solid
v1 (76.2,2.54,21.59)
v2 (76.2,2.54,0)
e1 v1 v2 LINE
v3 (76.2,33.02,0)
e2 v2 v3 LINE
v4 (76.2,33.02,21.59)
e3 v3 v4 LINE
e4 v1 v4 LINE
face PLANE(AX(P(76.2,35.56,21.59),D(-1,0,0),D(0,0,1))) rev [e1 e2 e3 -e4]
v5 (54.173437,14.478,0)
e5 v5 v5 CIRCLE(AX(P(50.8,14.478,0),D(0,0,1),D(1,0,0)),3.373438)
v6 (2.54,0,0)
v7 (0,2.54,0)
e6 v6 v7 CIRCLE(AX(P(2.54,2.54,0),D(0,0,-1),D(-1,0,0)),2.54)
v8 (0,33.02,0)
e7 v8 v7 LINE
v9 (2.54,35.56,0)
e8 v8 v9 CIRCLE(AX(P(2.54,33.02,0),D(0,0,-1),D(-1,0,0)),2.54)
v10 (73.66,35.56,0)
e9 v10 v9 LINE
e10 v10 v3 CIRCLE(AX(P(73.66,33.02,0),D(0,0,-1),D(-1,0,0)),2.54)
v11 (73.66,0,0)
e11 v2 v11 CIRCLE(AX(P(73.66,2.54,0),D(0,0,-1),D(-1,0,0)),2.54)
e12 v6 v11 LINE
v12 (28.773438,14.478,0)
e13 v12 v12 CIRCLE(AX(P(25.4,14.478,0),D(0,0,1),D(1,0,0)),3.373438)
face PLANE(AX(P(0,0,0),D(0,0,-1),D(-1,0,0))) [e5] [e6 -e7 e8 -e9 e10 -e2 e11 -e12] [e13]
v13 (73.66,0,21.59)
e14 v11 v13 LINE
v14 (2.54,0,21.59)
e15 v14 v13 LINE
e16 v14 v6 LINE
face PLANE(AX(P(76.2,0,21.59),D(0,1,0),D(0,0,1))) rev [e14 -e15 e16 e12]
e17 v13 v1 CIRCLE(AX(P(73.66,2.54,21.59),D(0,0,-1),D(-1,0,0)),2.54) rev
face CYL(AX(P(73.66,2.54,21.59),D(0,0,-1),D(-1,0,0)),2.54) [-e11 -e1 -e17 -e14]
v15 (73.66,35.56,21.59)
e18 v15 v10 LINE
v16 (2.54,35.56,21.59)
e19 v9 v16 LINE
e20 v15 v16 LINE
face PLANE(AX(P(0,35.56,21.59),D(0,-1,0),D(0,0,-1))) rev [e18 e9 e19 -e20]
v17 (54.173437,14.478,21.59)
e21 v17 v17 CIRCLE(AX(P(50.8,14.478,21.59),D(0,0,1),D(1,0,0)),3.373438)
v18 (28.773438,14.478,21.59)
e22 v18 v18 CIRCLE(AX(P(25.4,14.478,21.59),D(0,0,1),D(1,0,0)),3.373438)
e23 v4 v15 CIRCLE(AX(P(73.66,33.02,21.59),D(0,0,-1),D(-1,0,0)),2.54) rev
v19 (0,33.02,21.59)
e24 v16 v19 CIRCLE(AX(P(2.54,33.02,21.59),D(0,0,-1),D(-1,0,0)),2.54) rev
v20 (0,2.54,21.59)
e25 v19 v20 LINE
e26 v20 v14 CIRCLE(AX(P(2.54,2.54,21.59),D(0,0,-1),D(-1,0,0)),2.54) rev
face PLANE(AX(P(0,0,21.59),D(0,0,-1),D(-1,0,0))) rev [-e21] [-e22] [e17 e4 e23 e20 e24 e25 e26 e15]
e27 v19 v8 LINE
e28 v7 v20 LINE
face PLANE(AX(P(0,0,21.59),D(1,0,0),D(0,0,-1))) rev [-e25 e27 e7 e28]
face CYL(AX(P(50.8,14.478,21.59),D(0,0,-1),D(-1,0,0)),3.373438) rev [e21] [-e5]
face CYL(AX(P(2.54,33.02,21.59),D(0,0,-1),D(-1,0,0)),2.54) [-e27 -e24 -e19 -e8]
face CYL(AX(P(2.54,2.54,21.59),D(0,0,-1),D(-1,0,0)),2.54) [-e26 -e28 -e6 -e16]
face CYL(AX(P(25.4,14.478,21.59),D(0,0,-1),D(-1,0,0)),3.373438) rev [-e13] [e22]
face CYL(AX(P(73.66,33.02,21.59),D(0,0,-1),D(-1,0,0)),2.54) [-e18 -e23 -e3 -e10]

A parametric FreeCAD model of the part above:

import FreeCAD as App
import Part
import Sketcher

V = App.Vector
Q = App.Units.Quantity


def edges_at(feature, points):
    """Names of the edges that pass closest to the given points."""
    edges = feature.Shape.Edges
    near = lambda p: min(range(len(edges)), key=lambda i: edges[i].distToShape(Part.Vertex(*p))[0])
    return sorted({f"Edge{near(p) + 1}" for p in points})


def add_polygon(sketch, points):
    """Adds a closed chain of lines whose ends are joined by coincident constraints."""
    first, n = sketch.GeometryCount, len(points)
    for a, b in zip(points, points[1:] + points[:1]):
        sketch.addGeometry(Part.LineSegment(App.Vector(*a, 0), App.Vector(*b, 0)), False)
    for i in range(n):
        sketch.addConstraint(Sketcher.Constraint("Coincident", first + i, 2, first + (i + 1) % n, 1))

doc = App.newDocument("Part")
body = doc.addObject("PartDesign::Body", "Body")

# Sketch on XY plane
sketch1 = doc.addObject("Sketcher::SketchObject", "Sketch")
body.addObject(sketch1)
sketch1.AttachmentSupport = (doc.XY_Plane, [""])
sketch1.MapMode = "FlatFace"
add_polygon(sketch1, [(0, 35.6), (0, 0), (76.2, 0), (76.2, 35.6)])  # lines 0-3
sketch1.addGeometry(Part.Circle(V(25.4, 14.5, 0), V(0, 0, 1), 3.4), False)  # 4
sketch1.addGeometry(Part.Circle(V(50.8, 14.5, 0), V(0, 0, 1), 3.4), False)  # 5
sketch1.addConstraint([
    Sketcher.Constraint("Vertical", 0),
    Sketcher.Constraint("Horizontal", 1),
    Sketcher.Constraint("Vertical", 2),
    Sketcher.Constraint("Horizontal", 3),
    Sketcher.Constraint("Coincident", 0, 2, -1, 1),
    Sketcher.Constraint("Equal", 4, 5),
    Sketcher.Constraint("Horizontal", 4, 3, 5, 3),
    Sketcher.Constraint("DistanceX", 1, 1, 1, 2, Q("3 in")),
    Sketcher.Constraint("Diameter", 4, Q("0.265625 in")),
    Sketcher.Constraint("DistanceY", 0, 2, 0, 1, Q("1.4 in")),
    Sketcher.Constraint("DistanceX", -1, 1, 4, 3, Q("1 in")),
    Sketcher.Constraint("DistanceX", -1, 1, 5, 3, Q("2 in")),
    Sketcher.Constraint("DistanceY", -1, 1, 4, 3, Q("0.57 in")),
])
pad1 = doc.addObject("PartDesign::Pad", "Pad")
body.addObject(pad1)
pad1.Profile = sketch1
pad1.Length = Q("0.85 in")
doc.recompute()

fillet = doc.addObject("PartDesign::Fillet", "Fillet")
body.addObject(fillet)
fillet.Base = (pad1, edges_at(pad1, [
    (0, 0, 10.795),
    (0, 35.56, 10.795),
    (76.2, 35.56, 10.795),
    (76.2, 0, 10.795),
]))
fillet.Radius = Q("0.1 in")

doc.recompute()
